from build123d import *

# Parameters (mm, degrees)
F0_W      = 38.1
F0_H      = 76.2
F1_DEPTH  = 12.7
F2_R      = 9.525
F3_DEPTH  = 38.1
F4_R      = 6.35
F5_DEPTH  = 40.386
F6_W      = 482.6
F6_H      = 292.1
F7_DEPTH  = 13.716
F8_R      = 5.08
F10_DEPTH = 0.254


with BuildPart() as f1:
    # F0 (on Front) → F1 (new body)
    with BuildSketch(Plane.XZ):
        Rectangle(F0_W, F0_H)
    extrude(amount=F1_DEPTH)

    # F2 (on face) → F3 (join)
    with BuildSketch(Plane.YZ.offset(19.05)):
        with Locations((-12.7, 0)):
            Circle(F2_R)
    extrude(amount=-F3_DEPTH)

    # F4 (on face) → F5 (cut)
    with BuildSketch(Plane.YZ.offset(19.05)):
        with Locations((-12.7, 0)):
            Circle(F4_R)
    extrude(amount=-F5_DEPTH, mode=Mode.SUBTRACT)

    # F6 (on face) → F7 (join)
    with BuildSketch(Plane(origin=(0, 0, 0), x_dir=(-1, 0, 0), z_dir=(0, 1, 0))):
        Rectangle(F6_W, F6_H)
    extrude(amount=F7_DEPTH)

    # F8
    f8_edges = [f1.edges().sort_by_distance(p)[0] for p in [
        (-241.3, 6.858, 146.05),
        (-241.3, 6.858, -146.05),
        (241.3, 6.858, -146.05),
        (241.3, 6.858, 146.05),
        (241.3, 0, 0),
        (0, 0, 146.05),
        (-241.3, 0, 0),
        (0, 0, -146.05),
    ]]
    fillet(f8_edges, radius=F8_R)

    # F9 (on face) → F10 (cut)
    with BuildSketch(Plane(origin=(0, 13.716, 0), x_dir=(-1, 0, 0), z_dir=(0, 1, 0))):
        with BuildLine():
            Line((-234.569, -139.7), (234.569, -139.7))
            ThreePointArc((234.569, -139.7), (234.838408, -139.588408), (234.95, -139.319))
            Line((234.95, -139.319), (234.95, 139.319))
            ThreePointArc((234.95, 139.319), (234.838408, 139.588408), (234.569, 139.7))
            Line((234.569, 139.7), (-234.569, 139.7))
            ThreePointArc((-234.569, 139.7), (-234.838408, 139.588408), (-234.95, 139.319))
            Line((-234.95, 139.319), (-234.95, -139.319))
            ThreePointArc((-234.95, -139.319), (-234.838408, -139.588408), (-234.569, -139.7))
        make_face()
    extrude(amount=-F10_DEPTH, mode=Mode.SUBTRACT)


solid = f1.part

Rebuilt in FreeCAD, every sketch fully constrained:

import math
import FreeCAD as App
import Part
import Sketcher
Q = App.Units.Quantity


def edges_at(feature, points):
    """Names of the edges that pass closest to the given points."""
    edges = feature.Shape.Edges
    near = lambda p: min(range(len(edges)), key=lambda i: edges[i].distToShape(Part.Vertex(*p))[0])
    return sorted({f"Edge{near(p) + 1}" for p in points})

doc = App.newDocument("Part")
body = doc.addObject("PartDesign::Body", "Body")

# Sketch on XZ plane
sketch1 = body.newObject("Sketcher::SketchObject", "Sketch")
sketch1.AttachmentSupport = (doc.getObject("XZ_Plane"), [""])
sketch1.MapMode = "FlatFace"
sketch1.addGeometry([
    Part.LineSegment(App.Vector(-19.05, 38.1, 0), App.Vector(-19.05, -38.1, 0)),
    Part.LineSegment(App.Vector(-19.05, -38.1, 0), App.Vector(19.05, -38.1, 0)),
    Part.LineSegment(App.Vector(19.05, -38.1, 0), App.Vector(19.05, 38.1, 0)),
    Part.LineSegment(App.Vector(19.05, 38.1, 0), App.Vector(-19.05, 38.1, 0)),
], False)
sketch1.addConstraint([
    Sketcher.Constraint("Coincident", 0, 2, 1, 1),
    Sketcher.Constraint("Coincident", 1, 2, 2, 1),
    Sketcher.Constraint("Coincident", 2, 2, 3, 1),
    Sketcher.Constraint("Coincident", 3, 2, 0, 1),
    Sketcher.Constraint("Vertical", 0),
    Sketcher.Constraint("Horizontal", 1),
    Sketcher.Constraint("Vertical", 2),
    Sketcher.Constraint("Horizontal", 3),
    Sketcher.Constraint("Symmetric", 0, 2, 2, 2, -1, 1),
    Sketcher.Constraint("DistanceY", 0, 2, 0, 1, Q("3 in")),
    Sketcher.Constraint("DistanceX", 1, 1, 1, 2, Q("1.5 in")),
])
pad1 = body.newObject("PartDesign::Pad", "Pad")
pad1.Profile = sketch1
pad1.Length = Q("0.5 in")

# Sketch on YZ plane
sketch2 = body.newObject("Sketcher::SketchObject", "Sketch001")
sketch2.AttachmentSupport = (doc.getObject("YZ_Plane"), [""])
sketch2.MapMode = "FlatFace"
sketch2.AttachmentOffset = App.Placement(App.Vector(0, 0, 0.75 * 25.4), App.Rotation())
sketch2.addGeometry(Part.Circle(App.Vector(-12.7, 0, 0), App.Vector(0, 0, 1), 9.525), False)
sketch2.addConstraint([
    Sketcher.Constraint("PointOnObject", 0, 3, -1),
    Sketcher.Constraint("Diameter", 0, Q("0.75 in")),
    Sketcher.Constraint("DistanceX", 0, 3, -1, 1, Q("0.5 in")),
])
pad2 = body.newObject("PartDesign::Pad", "Pad001")
pad2.Profile = sketch2
pad2.Length = Q("1.5 in")
pad2.Reversed = True

# Sketch on YZ plane
sketch3 = body.newObject("Sketcher::SketchObject", "Sketch002")
sketch3.AttachmentSupport = (doc.getObject("YZ_Plane"), [""])
sketch3.MapMode = "FlatFace"
sketch3.AttachmentOffset = App.Placement(App.Vector(0, 0, 0.75 * 25.4), App.Rotation())
sketch3.addGeometry(Part.Circle(App.Vector(-12.7, 0, 0), App.Vector(0, 0, 1), 6.35), False)
sketch3.addConstraint([
    Sketcher.Constraint("PointOnObject", 0, 3, -1),
    Sketcher.Constraint("Diameter", 0, Q("0.5 in")),
    Sketcher.Constraint("DistanceX", 0, 3, -1, 1, Q("0.5 in")),
])
pocket1 = body.newObject("PartDesign::Pocket", "Pocket")
pocket1.Profile = sketch3
pocket1.Length = Q("1.59 in")

# Sketch on XZ plane
sketch4 = body.newObject("Sketcher::SketchObject", "Sketch003")
sketch4.AttachmentSupport = (doc.getObject("XZ_Plane"), [""])
sketch4.MapMode = "FlatFace"
sketch4.addGeometry([
    Part.LineSegment(App.Vector(241.3, 146.05, 0), App.Vector(241.3, -146.05, 0)),
    Part.LineSegment(App.Vector(241.3, -146.05, 0), App.Vector(-241.3, -146.05, 0)),
    Part.LineSegment(App.Vector(-241.3, -146.05, 0), App.Vector(-241.3, 146.05, 0)),
    Part.LineSegment(App.Vector(-241.3, 146.05, 0), App.Vector(241.3, 146.05, 0)),
], False)
sketch4.addConstraint([
    Sketcher.Constraint("Coincident", 0, 2, 1, 1),
    Sketcher.Constraint("Coincident", 1, 2, 2, 1),
    Sketcher.Constraint("Coincident", 2, 2, 3, 1),
    Sketcher.Constraint("Coincident", 3, 2, 0, 1),
    Sketcher.Constraint("Vertical", 0),
    Sketcher.Constraint("Horizontal", 1),
    Sketcher.Constraint("Vertical", 2),
    Sketcher.Constraint("Horizontal", 3),
    Sketcher.Constraint("Symmetric", 0, 2, 2, 2, -1, 1),
    Sketcher.Constraint("DistanceX", 1, 2, 1, 1, Q("19 in")),
    Sketcher.Constraint("DistanceY", 0, 2, 0, 1, Q("11.5 in")),
])
pad3 = body.newObject("PartDesign::Pad", "Pad002")
pad3.Profile = sketch4
pad3.Length = Q("0.54 in")
pad3.Reversed = True
doc.recompute()

fillet = body.newObject("PartDesign::Fillet", "Fillet")
fillet.Base = (pad3, edges_at(pad3, [
    (-241.3, 6.858, 146.05),
    (-241.3, 6.858, -146.05),
    (241.3, 6.858, -146.05),
    (241.3, 6.858, 146.05),
    (241.3, 0, 0),
    (0, 0, 146.05),
    (-241.3, 0, 0),
    (0, 0, -146.05),
]))
fillet.Radius = Q("0.2 in")

# Sketch on XZ plane
sketch5 = body.newObject("Sketcher::SketchObject", "Sketch004")
sketch5.AttachmentSupport = (doc.getObject("XZ_Plane"), [""])
sketch5.MapMode = "FlatFace"
sketch5.AttachmentOffset = App.Placement(App.Vector(0, 0, -0.54 * 25.4), App.Rotation())
sketch5.addGeometry([
    Part.LineSegment(App.Vector(234.569, -139.7, 0), App.Vector(-234.569, -139.7, 0)),  # 0
    Part.ArcOfCircle(Part.Circle(App.Vector(-234.569001, -139.319001, 0), App.Vector(0, 0, 1), 0.380999), math.radians(179.999838), math.radians(270.000162)),  # 1
    Part.LineSegment(App.Vector(-234.95, -139.319, 0), App.Vector(-234.95, 139.319, 0)),  # 2
    Part.ArcOfCircle(Part.Circle(App.Vector(-234.569001, 139.319001, 0), App.Vector(0, 0, 1), 0.380999), math.radians(89.999838), math.radians(180.000162)),  # 3
    Part.LineSegment(App.Vector(-234.569, 139.7, 0), App.Vector(234.569, 139.7, 0)),  # 4
    Part.ArcOfCircle(Part.Circle(App.Vector(234.569001, 139.319001, 0), App.Vector(0, 0, 1), 0.380999), math.radians(-0.000162), math.radians(90.000162)),  # 5
    Part.LineSegment(App.Vector(234.95, 139.319, 0), App.Vector(234.95, -139.319, 0)),  # 6
    Part.ArcOfCircle(Part.Circle(App.Vector(234.569001, -139.319001, 0), App.Vector(0, 0, 1), 0.380999), math.radians(-90.000162), math.radians(0.000162)),  # 7
], False)
sketch5.addConstraint([
    Sketcher.Constraint("Coincident", 0, 2, 1, 2),
    Sketcher.Constraint("Coincident", 1, 1, 2, 1),
    Sketcher.Constraint("Coincident", 2, 2, 3, 2),
    Sketcher.Constraint("Coincident", 3, 1, 4, 1),
    Sketcher.Constraint("Coincident", 4, 2, 5, 2),
    Sketcher.Constraint("Coincident", 5, 1, 6, 1),
    Sketcher.Constraint("Coincident", 6, 2, 7, 2),
    Sketcher.Constraint("Coincident", 7, 1, 0, 1),
    Sketcher.Constraint("Horizontal", 0),
    Sketcher.Constraint("Vertical", 2),
    Sketcher.Constraint("Horizontal", 4),
    Sketcher.Constraint("Vertical", 6),
    Sketcher.Constraint("Equal", 1, 3),
    Sketcher.Constraint("Equal", 3, 5),
    Sketcher.Constraint("Equal", 5, 7),
    Sketcher.Constraint("Symmetric", 1, 3, 5, 3, -1, 1),
    Sketcher.Constraint("Horizontal", 7, 3, 1, 1),
    Sketcher.Constraint("Horizontal", 5, 3, 2, 2),
    Sketcher.Constraint("Horizontal", 2, 2, 5, 1),
    Sketcher.Constraint("Horizontal", 1, 1, 6, 2),
    Sketcher.Constraint("Vertical", 3, 3, 0, 2),
    Sketcher.Constraint("Vertical", 0, 2, 3, 1),
    Sketcher.Constraint("Vertical", 7, 3, 4, 2),
    Sketcher.Constraint("Vertical", 4, 2, 7, 1),
    Sketcher.Constraint("Radius", 1, Q("0.015 in")),
    Sketcher.Constraint("DistanceY", 0, 2, 3, 1, Q("11 in")),
    Sketcher.Constraint("DistanceX", 0, 2, 0, 1, Q("18.47 in")),
])
pocket2 = body.newObject("PartDesign::Pocket", "Pocket001")
pocket2.Profile = sketch5
pocket2.Length = Q("0.01 in")
pocket2.Reversed = True

doc.recompute()
